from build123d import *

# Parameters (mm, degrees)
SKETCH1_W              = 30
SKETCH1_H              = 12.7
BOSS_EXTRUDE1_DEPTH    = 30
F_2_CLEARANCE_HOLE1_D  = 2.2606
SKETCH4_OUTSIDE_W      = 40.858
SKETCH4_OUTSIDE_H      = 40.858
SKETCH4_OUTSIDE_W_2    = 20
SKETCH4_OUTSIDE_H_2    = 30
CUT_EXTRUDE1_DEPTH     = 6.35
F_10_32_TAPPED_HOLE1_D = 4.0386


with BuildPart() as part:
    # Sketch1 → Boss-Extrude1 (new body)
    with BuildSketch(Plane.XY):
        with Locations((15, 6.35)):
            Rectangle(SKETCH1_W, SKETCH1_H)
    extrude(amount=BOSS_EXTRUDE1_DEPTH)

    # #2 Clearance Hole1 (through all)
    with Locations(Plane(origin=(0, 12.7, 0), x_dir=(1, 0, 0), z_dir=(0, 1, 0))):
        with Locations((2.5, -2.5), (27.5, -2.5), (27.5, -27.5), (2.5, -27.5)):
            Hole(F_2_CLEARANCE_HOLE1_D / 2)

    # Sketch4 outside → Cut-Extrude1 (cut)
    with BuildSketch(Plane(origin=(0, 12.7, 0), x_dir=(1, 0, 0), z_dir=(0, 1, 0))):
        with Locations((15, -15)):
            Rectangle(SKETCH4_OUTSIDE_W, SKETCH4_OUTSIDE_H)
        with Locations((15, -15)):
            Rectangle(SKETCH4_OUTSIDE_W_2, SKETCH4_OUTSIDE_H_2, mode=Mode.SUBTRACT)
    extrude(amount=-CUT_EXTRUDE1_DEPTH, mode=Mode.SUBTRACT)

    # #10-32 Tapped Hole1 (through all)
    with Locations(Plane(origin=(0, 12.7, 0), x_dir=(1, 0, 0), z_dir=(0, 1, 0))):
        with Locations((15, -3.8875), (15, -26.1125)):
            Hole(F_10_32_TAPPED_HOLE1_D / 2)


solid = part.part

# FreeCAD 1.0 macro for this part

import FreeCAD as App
import Part
import Sketcher

V = App.Vector
Q = App.Units.Quantity


def add_polygon(sketch, points):
    """Adds a closed chain of lines whose ends are joined by coincident constraints."""
    first, n = sketch.GeometryCount, len(points)
    for a, b in zip(points, points[1:] + points[:1]):
        sketch.addGeometry(Part.LineSegment(App.Vector(*a, 0), App.Vector(*b, 0)), False)
    for i in range(n):
        sketch.addConstraint(Sketcher.Constraint("Coincident", first + i, 2, first + (i + 1) % n, 1))

doc = App.newDocument("Part")
body = doc.addObject("PartDesign::Body", "Body")

sketch1 = body.newObject("Sketcher::SketchObject", "Sketch")
sketch1.AttachmentSupport = (doc.getObject("XY_Plane"), [""])
sketch1.MapMode = "FlatFace"
add_polygon(sketch1, [(0, 13), (0, 0), (30, 0), (30, 13)])
sketch1.addConstraint([
    Sketcher.Constraint("Vertical", 0),
    Sketcher.Constraint("Horizontal", 1),
    Sketcher.Constraint("Vertical", 2),
    Sketcher.Constraint("Horizontal", 3),
    Sketcher.Constraint("Coincident", 0, 2, -1, 1),
    Sketcher.Constraint("DistanceY", 0, 2, 0, 1, Q("0.5 in")),
    Sketcher.Constraint("DistanceX", 1, 1, 1, 2, 30.0),
])
pad1 = body.newObject("PartDesign::Pad", "Pad")
pad1.Profile = sketch1
pad1.Length = 30

sketch2 = body.newObject("Sketcher::SketchObject", "Sketch001")
sketch2.AttachmentSupport = (doc.getObject("XZ_Plane"), [""])
sketch2.MapMode = "FlatFace"
sketch2.AttachmentOffset = App.Placement(V(0, 0, -0.5 * 25.4), App.Rotation())
sketch2.addGeometry([
    Part.Circle(V(2.5, 2.5, 0), V(0, 0, 1), 1.1),
    Part.Circle(V(27.5, 2.5, 0), V(0, 0, 1), 1.1),
    Part.Circle(V(27.5, 27.5, 0), V(0, 0, 1), 1.1),
    Part.Circle(V(2.5, 27.5, 0), V(0, 0, 1), 1.1),
], False)
sketch2.addConstraint([
    Sketcher.Constraint("Equal", 0, 1),
    Sketcher.Constraint("Equal", 1, 2),
    Sketcher.Constraint("Equal", 2, 3),
    Sketcher.Constraint("Horizontal", 0, 3, 1, 3),
    Sketcher.Constraint("Horizontal", 2, 3, 3, 3),
    Sketcher.Constraint("Vertical", 1, 3, 2, 3),
    Sketcher.Constraint("Vertical", 0, 3, 3, 3),
    Sketcher.Constraint("Diameter", 0, Q("0.089 in")),
    Sketcher.Constraint("DistanceX", -1, 1, 0, 3, 2.5),
    Sketcher.Constraint("DistanceY", -1, 1, 0, 3, 2.5),
    Sketcher.Constraint("DistanceX", -1, 1, 1, 3, 27.5),
    Sketcher.Constraint("DistanceY", -1, 1, 2, 3, 27.5),
])
doc.recompute()
hole = body.newObject("PartDesign::Hole", "Hole")
hole.Profile = sketch2
hole.ThreadType = "None"
hole.Diameter = Q("0.089 in")
hole.DepthType = "ThroughAll"
hole.Reversed = True

sketch3 = body.newObject("Sketcher::SketchObject", "Sketch002")
sketch3.AttachmentSupport = (doc.getObject("XZ_Plane"), [""])
sketch3.MapMode = "FlatFace"
sketch3.AttachmentOffset = App.Placement(V(0, 0, -0.5 * 25.4), App.Rotation())
add_polygon(sketch3, [(-5, -5), (-5, 35), (35, 35), (35, -5)])
add_polygon(sketch3, [(25, 30), (5, 30), (5, 0), (25, 0)])
sketch3.addConstraint([
    Sketcher.Constraint("Vertical", 0),
    Sketcher.Constraint("Horizontal", 1),
    Sketcher.Constraint("Vertical", 2),
    Sketcher.Constraint("Horizontal", 3),
    Sketcher.Constraint("Horizontal", 4),
    Sketcher.Constraint("Vertical", 5),
    Sketcher.Constraint("Horizontal", 6),
    Sketcher.Constraint("Vertical", 7),
    Sketcher.Constraint("PointOnObject", 5, 2, -1),
    Sketcher.Constraint("Equal", 3, 0),
    Sketcher.Constraint("DistanceX", 1, 1, 1, 2, 40.858),
    Sketcher.Constraint("DistanceX", 4, 2, 4, 1, 20.0),
    Sketcher.Constraint("DistanceY", 5, 2, 5, 1, 30.0),
    Sketcher.Constraint("DistanceX", 0, 2, -1, 1, 5.429),
    Sketcher.Constraint("DistanceY", -1, 1, 0, 2, 35.429),
    Sketcher.Constraint("DistanceX", -1, 1, 4, 2, 5.0),
])
pocket1 = body.newObject("PartDesign::Pocket", "Pocket")
pocket1.Profile = sketch3
pocket1.Length = Q("0.25 in")
pocket1.Reversed = True

sketch4 = body.newObject("Sketcher::SketchObject", "Sketch003")
sketch4.AttachmentSupport = (doc.getObject("XZ_Plane"), [""])
sketch4.MapMode = "FlatFace"
sketch4.AttachmentOffset = App.Placement(V(0, 0, -0.5 * 25.4), App.Rotation())
sketch4.addGeometry([
    Part.Circle(V(15, 3.9, 0), V(0, 0, 1), 2),
    Part.Circle(V(15, 26.1, 0), V(0, 0, 1), 2),
], False)
sketch4.addConstraint([
    Sketcher.Constraint("Equal", 0, 1),
    Sketcher.Constraint("Vertical", 0, 3, 1, 3),
    Sketcher.Constraint("Diameter", 0, Q("0.159 in")),
    Sketcher.Constraint("DistanceY", 0, 3, 1, 3, Q("0.875 in")),
    Sketcher.Constraint("DistanceX", -1, 1, 0, 3, 15.0),
    Sketcher.Constraint("DistanceY", -1, 1, 0, 3, 3.8875),
])
doc.recompute()
hole2 = body.newObject("PartDesign::Hole", "Hole001")
hole2.Profile = sketch4
hole2.ThreadType = "None"
hole2.Diameter = Q("0.159 in")
hole2.DepthType = "ThroughAll"
hole2.Reversed = True

doc.recompute()
